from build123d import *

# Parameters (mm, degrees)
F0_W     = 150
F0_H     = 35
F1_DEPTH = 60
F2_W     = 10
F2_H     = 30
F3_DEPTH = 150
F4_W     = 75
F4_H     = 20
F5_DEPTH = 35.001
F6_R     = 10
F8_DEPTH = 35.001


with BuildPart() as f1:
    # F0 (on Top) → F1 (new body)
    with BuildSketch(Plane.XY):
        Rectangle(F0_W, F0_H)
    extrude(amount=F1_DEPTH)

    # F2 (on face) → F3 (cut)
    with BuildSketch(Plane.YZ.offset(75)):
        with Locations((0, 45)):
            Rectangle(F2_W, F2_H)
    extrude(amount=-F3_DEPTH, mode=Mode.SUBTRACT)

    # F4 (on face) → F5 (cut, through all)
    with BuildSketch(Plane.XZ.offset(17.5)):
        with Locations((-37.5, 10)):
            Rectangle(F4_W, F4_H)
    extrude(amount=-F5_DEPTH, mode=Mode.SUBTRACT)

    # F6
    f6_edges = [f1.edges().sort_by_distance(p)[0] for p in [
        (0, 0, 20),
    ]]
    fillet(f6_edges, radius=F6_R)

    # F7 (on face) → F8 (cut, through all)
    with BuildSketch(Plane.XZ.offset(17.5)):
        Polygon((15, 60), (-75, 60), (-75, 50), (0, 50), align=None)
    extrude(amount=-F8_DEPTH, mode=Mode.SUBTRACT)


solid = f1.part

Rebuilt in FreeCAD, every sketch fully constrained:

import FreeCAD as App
import Part
import Sketcher

V = App.Vector
Q = App.Units.Quantity


def edges_at(feature, points):
    """Names of the edges that pass closest to the given points."""
    edges = feature.Shape.Edges
    near = lambda p: min(range(len(edges)), key=lambda i: edges[i].distToShape(Part.Vertex(*p))[0])
    return sorted({f"Edge{near(p) + 1}" for p in points})

doc = App.newDocument("Part")
body = doc.addObject("PartDesign::Body", "Body")

# Sketch on XY plane
sketch1 = body.newObject("Sketcher::SketchObject", "Sketch")
sketch1.AttachmentSupport = (doc.getObject("XY_Plane"), [""])
sketch1.MapMode = "FlatFace"
sketch1.addGeometry(Part.LineSegment(V(-75, 18, 0), V(-75, -18, 0)), False)
sketch1.addGeometry(Part.LineSegment(V(-75, -18, 0), V(75, -18, 0)), False)
sketch1.addGeometry(Part.LineSegment(V(75, -18, 0), V(75, 18, 0)), False)
sketch1.addGeometry(Part.LineSegment(V(75, 18, 0), V(-75, 18, 0)), False)
sketch1.addConstraint(Sketcher.Constraint("Coincident", 0, 2, 1, 1))
sketch1.addConstraint(Sketcher.Constraint("Coincident", 1, 2, 2, 1))
sketch1.addConstraint(Sketcher.Constraint("Coincident", 2, 2, 3, 1))
sketch1.addConstraint(Sketcher.Constraint("Coincident", 3, 2, 0, 1))
sketch1.addConstraint(Sketcher.Constraint("Vertical", 0))
sketch1.addConstraint(Sketcher.Constraint("Horizontal", 1))
sketch1.addConstraint(Sketcher.Constraint("Vertical", 2))
sketch1.addConstraint(Sketcher.Constraint("Horizontal", 3))
sketch1.addConstraint(Sketcher.Constraint("Symmetric", 0, 2, 2, 2, -1, 1))
sketch1.addConstraint(Sketcher.Constraint("DistanceX", 1, 1, 1, 2, Q("150 mm")))
sketch1.addConstraint(Sketcher.Constraint("DistanceY", 0, 2, 0, 1, Q("35 mm")))
pad1 = body.newObject("PartDesign::Pad", "Pad")
pad1.Profile = sketch1
pad1.Length = 60

# Sketch on YZ plane
sketch2 = body.newObject("Sketcher::SketchObject", "Sketch001")
sketch2.AttachmentSupport = (doc.getObject("YZ_Plane"), [""])
sketch2.MapMode = "FlatFace"
sketch2.AttachmentOffset = App.Placement(V(0, 0, 75), App.Rotation())
sketch2.addGeometry(Part.LineSegment(V(-5, 60, 0), V(-5, 30, 0)), False)
sketch2.addGeometry(Part.LineSegment(V(-5, 30, 0), V(5, 30, 0)), False)
sketch2.addGeometry(Part.LineSegment(V(5, 30, 0), V(5, 60, 0)), False)
sketch2.addGeometry(Part.LineSegment(V(5, 60, 0), V(-5, 60, 0)), False)
sketch2.addConstraint(Sketcher.Constraint("Coincident", 0, 2, 1, 1))
sketch2.addConstraint(Sketcher.Constraint("Coincident", 1, 2, 2, 1))
sketch2.addConstraint(Sketcher.Constraint("Coincident", 2, 2, 3, 1))
sketch2.addConstraint(Sketcher.Constraint("Coincident", 3, 2, 0, 1))
sketch2.addConstraint(Sketcher.Constraint("Vertical", 0))
sketch2.addConstraint(Sketcher.Constraint("Horizontal", 1))
sketch2.addConstraint(Sketcher.Constraint("Vertical", 2))
sketch2.addConstraint(Sketcher.Constraint("Horizontal", 3))
sketch2.addConstraint(Sketcher.Constraint("DistanceX", 1, 1, 1, 2, Q("10 mm")))
sketch2.addConstraint(Sketcher.Constraint("DistanceY", 0, 2, 0, 1, Q("30 mm")))
sketch2.addConstraint(Sketcher.Constraint("DistanceX", 0, 2, -1, 1, Q("5 mm")))
sketch2.addConstraint(Sketcher.Constraint("DistanceY", -1, 1, 0, 2, Q("30 mm")))
pocket1 = body.newObject("PartDesign::Pocket", "Pocket")
pocket1.Profile = sketch2
pocket1.Length = 150

# Sketch on XZ plane
sketch3 = body.newObject("Sketcher::SketchObject", "Sketch002")
sketch3.AttachmentSupport = (doc.getObject("XZ_Plane"), [""])
sketch3.MapMode = "FlatFace"
sketch3.AttachmentOffset = App.Placement(V(0, 0, 17.5), App.Rotation())
sketch3.addGeometry(Part.LineSegment(V(-75, 20, 0), V(-75, 0, 0)), False)
sketch3.addGeometry(Part.LineSegment(V(-75, 0, 0), V(0, 0, 0)), False)
sketch3.addGeometry(Part.LineSegment(V(0, 0, 0), V(0, 20, 0)), False)
sketch3.addGeometry(Part.LineSegment(V(0, 20, 0), V(-75, 20, 0)), False)
sketch3.addConstraint(Sketcher.Constraint("Coincident", 0, 2, 1, 1))
sketch3.addConstraint(Sketcher.Constraint("Coincident", 1, 2, 2, 1))
sketch3.addConstraint(Sketcher.Constraint("Coincident", 2, 2, 3, 1))
sketch3.addConstraint(Sketcher.Constraint("Coincident", 3, 2, 0, 1))
sketch3.addConstraint(Sketcher.Constraint("Vertical", 0))
sketch3.addConstraint(Sketcher.Constraint("Horizontal", 1))
sketch3.addConstraint(Sketcher.Constraint("Vertical", 2))
sketch3.addConstraint(Sketcher.Constraint("Horizontal", 3))
sketch3.addConstraint(Sketcher.Constraint("Coincident", 1, 2, -1, 1))
sketch3.addConstraint(Sketcher.Constraint("DistanceX", 1, 1, 1, 2, Q("75 mm")))
sketch3.addConstraint(Sketcher.Constraint("DistanceY", 0, 2, 0, 1, Q("20 mm")))
pocket2 = body.newObject("PartDesign::Pocket", "Pocket001")
pocket2.Profile = sketch3
pocket2.Type = "ThroughAll"
doc.recompute()

fillet = body.newObject("PartDesign::Fillet", "Fillet")
fillet.Base = (pocket2, edges_at(pocket2, [(0, 0, 20)]))
fillet.Radius = 10

# Sketch on XZ plane
sketch4 = body.newObject("Sketcher::SketchObject", "Sketch003")
sketch4.AttachmentSupport = (doc.getObject("XZ_Plane"), [""])
sketch4.MapMode = "FlatFace"
sketch4.AttachmentOffset = App.Placement(V(0, 0, 17.5), App.Rotation())
sketch4.addGeometry(Part.LineSegment(V(15, 60, 0), V(-75, 60, 0)), False)
sketch4.addGeometry(Part.LineSegment(V(-75, 60, 0), V(-75, 50, 0)), False)
sketch4.addGeometry(Part.LineSegment(V(-75, 50, 0), V(0, 50, 0)), False)
sketch4.addGeometry(Part.LineSegment(V(0, 50, 0), V(15, 60, 0)), False)
sketch4.addConstraint(Sketcher.Constraint("Coincident", 0, 2, 1, 1))
sketch4.addConstraint(Sketcher.Constraint("Coincident", 1, 2, 2, 1))
sketch4.addConstraint(Sketcher.Constraint("Coincident", 2, 2, 3, 1))
sketch4.addConstraint(Sketcher.Constraint("Coincident", 3, 2, 0, 1))
sketch4.addConstraint(Sketcher.Constraint("Horizontal", 0))
sketch4.addConstraint(Sketcher.Constraint("Vertical", 1))
sketch4.addConstraint(Sketcher.Constraint("Horizontal", 2))
sketch4.addConstraint(Sketcher.Constraint("PointOnObject", 2, 2, -2))
sketch4.addConstraint(Sketcher.Constraint("DistanceX", 0, 2, 0, 1, Q("90 mm")))
sketch4.addConstraint(Sketcher.Constraint("DistanceX", 2, 1, 2, 2, Q("75 mm")))
sketch4.addConstraint(Sketcher.Constraint("DistanceY", 1, 2, 1, 1, Q("10 mm")))
sketch4.addConstraint(Sketcher.Constraint("DistanceY", -1, 1, 0, 2, Q("60 mm")))
pocket3 = body.newObject("PartDesign::Pocket", "Pocket002")
pocket3.Profile = sketch4
pocket3.Type = "ThroughAll"

doc.recompute()
